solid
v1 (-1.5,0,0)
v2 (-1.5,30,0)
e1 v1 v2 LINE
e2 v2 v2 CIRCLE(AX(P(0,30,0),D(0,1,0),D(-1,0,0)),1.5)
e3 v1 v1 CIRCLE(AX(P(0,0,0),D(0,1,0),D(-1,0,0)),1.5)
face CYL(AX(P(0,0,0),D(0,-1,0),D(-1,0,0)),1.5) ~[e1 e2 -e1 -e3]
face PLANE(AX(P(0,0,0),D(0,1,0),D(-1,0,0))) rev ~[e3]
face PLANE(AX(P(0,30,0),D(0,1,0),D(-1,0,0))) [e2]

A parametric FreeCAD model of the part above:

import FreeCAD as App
import Part
import Sketcher
Q = App.Units.Quantity

doc = App.newDocument("Part")
body = doc.addObject("PartDesign::Body", "Body")

sketch1 = body.newObject("Sketcher::SketchObject", "Sketch")
sketch1.AttachmentSupport = (doc.getObject("XZ_Plane"), [""])
sketch1.MapMode = "FlatFace"
sketch1.addGeometry(Part.Circle(App.Vector(0, 0, 0), App.Vector(0, 0, 1), 1.5), False)
sketch1.addConstraint(Sketcher.Constraint("Coincident", 0, 3, -1, 1))
sketch1.addConstraint(Sketcher.Constraint("Diameter", 0, Q("3 mm")))
pad1 = body.newObject("PartDesign::Pad", "Pad")
pad1.Profile = sketch1
pad1.Length = 30
pad1.Reversed = True

doc.recompute()
